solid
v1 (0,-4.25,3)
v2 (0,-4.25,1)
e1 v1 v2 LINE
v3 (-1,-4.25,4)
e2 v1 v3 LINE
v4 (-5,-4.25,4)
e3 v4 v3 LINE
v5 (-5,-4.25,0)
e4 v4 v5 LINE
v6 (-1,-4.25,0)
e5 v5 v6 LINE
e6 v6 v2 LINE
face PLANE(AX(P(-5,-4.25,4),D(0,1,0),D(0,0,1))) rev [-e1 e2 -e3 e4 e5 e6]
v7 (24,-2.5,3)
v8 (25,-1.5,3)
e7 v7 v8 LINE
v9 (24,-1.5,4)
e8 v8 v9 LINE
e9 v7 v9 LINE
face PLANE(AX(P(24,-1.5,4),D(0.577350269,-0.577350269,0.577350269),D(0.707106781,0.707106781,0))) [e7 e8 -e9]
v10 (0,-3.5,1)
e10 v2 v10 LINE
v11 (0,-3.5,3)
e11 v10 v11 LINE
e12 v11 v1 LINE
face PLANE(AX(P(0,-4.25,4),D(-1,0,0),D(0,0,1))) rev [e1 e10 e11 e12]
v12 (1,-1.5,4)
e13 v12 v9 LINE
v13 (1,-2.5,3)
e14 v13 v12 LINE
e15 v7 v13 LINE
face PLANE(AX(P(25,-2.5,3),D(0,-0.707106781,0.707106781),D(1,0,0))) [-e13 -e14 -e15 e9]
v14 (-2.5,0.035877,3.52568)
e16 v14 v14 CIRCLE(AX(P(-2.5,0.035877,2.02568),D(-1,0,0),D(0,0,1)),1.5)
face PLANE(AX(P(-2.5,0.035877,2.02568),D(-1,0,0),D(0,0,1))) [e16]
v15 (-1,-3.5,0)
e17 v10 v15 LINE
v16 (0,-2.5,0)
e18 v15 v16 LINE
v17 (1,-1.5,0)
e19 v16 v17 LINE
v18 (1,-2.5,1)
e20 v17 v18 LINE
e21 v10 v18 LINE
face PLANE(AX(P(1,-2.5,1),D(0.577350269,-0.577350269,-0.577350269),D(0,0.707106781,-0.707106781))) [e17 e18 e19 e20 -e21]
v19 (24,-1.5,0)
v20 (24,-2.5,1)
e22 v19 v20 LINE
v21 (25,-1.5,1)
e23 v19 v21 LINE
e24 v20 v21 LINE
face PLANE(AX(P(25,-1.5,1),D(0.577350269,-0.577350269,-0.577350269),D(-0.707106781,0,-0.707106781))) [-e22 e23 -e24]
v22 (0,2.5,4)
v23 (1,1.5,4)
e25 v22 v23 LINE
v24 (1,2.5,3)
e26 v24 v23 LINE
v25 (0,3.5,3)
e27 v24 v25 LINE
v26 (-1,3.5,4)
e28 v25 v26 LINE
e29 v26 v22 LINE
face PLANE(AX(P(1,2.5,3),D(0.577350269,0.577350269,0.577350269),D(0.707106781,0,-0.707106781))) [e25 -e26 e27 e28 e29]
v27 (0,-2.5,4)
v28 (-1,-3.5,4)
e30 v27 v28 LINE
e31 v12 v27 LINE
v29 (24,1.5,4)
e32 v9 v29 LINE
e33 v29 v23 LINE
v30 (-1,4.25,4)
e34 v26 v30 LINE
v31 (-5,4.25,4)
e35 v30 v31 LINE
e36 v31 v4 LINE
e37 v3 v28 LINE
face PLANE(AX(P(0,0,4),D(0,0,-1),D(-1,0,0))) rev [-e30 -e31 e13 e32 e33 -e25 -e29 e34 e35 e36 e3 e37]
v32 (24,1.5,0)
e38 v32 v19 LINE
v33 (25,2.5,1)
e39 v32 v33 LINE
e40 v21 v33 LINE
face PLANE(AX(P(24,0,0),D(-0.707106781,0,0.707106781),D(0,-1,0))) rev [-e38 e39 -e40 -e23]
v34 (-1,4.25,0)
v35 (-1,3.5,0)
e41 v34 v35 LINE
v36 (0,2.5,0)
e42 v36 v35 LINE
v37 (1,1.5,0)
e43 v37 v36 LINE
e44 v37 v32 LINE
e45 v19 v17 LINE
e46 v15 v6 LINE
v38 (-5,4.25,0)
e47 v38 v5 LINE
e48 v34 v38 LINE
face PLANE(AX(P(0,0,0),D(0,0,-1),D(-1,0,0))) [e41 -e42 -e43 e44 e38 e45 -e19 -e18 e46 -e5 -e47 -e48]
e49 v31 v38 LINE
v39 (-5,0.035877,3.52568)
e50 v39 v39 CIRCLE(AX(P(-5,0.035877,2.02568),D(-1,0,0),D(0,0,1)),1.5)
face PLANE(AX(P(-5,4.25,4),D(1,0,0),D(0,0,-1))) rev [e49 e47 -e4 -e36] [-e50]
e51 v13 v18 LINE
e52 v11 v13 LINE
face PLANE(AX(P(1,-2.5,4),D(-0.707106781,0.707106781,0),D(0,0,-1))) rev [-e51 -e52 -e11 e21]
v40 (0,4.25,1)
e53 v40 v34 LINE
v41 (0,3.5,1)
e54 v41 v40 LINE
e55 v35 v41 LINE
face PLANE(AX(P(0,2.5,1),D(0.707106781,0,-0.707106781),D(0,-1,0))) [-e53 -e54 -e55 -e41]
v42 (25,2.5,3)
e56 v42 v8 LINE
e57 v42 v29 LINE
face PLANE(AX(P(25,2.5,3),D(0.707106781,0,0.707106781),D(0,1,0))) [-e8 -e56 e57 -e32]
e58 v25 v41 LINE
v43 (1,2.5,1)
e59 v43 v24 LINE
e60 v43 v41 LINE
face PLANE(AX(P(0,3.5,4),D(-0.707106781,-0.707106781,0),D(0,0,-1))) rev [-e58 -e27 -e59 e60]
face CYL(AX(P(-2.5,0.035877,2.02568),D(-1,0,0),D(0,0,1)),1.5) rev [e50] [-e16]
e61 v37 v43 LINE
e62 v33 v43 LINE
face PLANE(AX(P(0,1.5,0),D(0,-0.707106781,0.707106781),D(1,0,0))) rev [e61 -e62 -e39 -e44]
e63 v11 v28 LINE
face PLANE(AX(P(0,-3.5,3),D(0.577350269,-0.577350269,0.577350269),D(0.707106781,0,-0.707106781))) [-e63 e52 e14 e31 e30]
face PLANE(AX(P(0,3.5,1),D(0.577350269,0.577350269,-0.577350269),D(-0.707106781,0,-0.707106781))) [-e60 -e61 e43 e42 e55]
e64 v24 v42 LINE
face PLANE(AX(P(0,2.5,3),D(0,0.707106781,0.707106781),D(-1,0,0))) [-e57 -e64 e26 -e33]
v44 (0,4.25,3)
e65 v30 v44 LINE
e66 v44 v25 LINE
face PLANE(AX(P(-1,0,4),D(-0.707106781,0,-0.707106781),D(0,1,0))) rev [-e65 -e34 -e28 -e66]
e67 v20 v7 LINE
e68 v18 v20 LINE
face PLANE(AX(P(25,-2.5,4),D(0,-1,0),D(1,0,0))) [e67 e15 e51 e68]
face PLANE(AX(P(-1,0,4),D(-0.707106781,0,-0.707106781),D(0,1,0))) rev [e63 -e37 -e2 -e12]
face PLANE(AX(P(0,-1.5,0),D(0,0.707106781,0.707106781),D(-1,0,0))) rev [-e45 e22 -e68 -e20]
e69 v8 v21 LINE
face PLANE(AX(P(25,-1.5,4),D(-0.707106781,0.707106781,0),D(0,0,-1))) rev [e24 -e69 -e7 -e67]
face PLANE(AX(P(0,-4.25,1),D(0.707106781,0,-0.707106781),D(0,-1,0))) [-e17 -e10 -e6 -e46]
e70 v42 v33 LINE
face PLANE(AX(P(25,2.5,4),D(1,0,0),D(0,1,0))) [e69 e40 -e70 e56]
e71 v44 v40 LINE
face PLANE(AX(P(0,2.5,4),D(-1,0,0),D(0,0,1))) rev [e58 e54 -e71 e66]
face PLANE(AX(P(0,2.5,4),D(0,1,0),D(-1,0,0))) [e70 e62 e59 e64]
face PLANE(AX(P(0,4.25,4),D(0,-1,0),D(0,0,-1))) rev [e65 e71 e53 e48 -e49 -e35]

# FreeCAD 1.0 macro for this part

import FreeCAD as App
import Part
import Sketcher

V = App.Vector
Q = App.Units.Quantity


def edges_at(feature, points):
    """Names of the edges that pass closest to the given points."""
    edges = feature.Shape.Edges
    near = lambda p: min(range(len(edges)), key=lambda i: edges[i].distToShape(Part.Vertex(*p))[0])
    return sorted({f"Edge{near(p) + 1}" for p in points})


def add_polygon(sketch, points):
    """Adds a closed chain of lines whose ends are joined by coincident constraints."""
    first, n = sketch.GeometryCount, len(points)
    for a, b in zip(points, points[1:] + points[:1]):
        sketch.addGeometry(Part.LineSegment(App.Vector(*a, 0), App.Vector(*b, 0)), False)
    for i in range(n):
        sketch.addConstraint(Sketcher.Constraint("Coincident", first + i, 2, first + (i + 1) % n, 1))

doc = App.newDocument("Part")
body = doc.addObject("PartDesign::Body", "Body")

# Sketch on XY plane
sketch1 = body.newObject("Sketcher::SketchObject", "Sketch")
sketch1.AttachmentSupport = (doc.getObject("XY_Plane"), [""])
sketch1.MapMode = "FlatFace"
add_polygon(sketch1, [(0, -4.25), (0, -2.5), (25, -2.5), (25, 2.5), (0, 2.5), (0, 4.25), (-5, 4.25), (-5, -4.25)])  # lines 0-7
sketch1.addConstraint([
    Sketcher.Constraint("Vertical", 0),
    Sketcher.Constraint("Horizontal", 1),
    Sketcher.Constraint("Vertical", 2),
    Sketcher.Constraint("Horizontal", 3),
    Sketcher.Constraint("Vertical", 4),
    Sketcher.Constraint("Horizontal", 5),
    Sketcher.Constraint("Vertical", 6),
    Sketcher.Constraint("Horizontal", 7),
    Sketcher.Constraint("Symmetric", 0, 2, 3, 2, -1, 1),
    Sketcher.Constraint("Symmetric", 4, 2, 7, 2, -1),
    Sketcher.Constraint("Equal", 7, 2),
    Sketcher.Constraint("DistanceX", 1, 1, 1, 2, Q("25 mm")),
    Sketcher.Constraint("DistanceX", 5, 2, 5, 1, Q("5 mm")),
    Sketcher.Constraint("DistanceY", 6, 2, 6, 1, Q("8.5 mm")),
])
pad1 = body.newObject("PartDesign::Pad", "Pad")
pad1.Profile = sketch1
pad1.Length = 4
doc.recompute()

chamfer = body.newObject("PartDesign::Chamfer", "Chamfer")
chamfer.Base = (pad1, edges_at(pad1, [
    (0, -3.375, 0),
    (12.5, -2.5, 0),
    (25, 0, 0),
    (0, -3.375, 4),
    (0, 2.5, 2),
    (0, -2.5, 2),
    (25, -2.5, 2),
    (0, 3.375, 4),
    (12.5, 2.5, 4),
    (25, 0, 4),
    (12.5, 2.5, 0),
    (12.5, -2.5, 4),
    (0, 3.375, 0),
]))
chamfer.Size = 1

# Sketch on YZ plane
sketch2 = body.newObject("Sketcher::SketchObject", "Sketch001")
sketch2.AttachmentSupport = (doc.getObject("YZ_Plane"), [""])
sketch2.MapMode = "FlatFace"
sketch2.AttachmentOffset = App.Placement(V(0, 0, -5), App.Rotation())
sketch2.addGeometry(Part.Circle(V(0.035877, 2.02568, 0), V(0, 0, 1), 1.5), False)
sketch2.addConstraint([
    Sketcher.Constraint("Diameter", 0, Q("3 mm")),
    Sketcher.Constraint("DistanceY", -1, 1, 0, 3, Q("2.02568 mm")),
    Sketcher.Constraint("DistanceX", -1, 1, 0, 3, Q("0.035877 mm")),
])
pocket1 = body.newObject("PartDesign::Pocket", "Pocket")
pocket1.Profile = sketch2
pocket1.Length = 2.5
pocket1.Reversed = True

doc.recompute()
